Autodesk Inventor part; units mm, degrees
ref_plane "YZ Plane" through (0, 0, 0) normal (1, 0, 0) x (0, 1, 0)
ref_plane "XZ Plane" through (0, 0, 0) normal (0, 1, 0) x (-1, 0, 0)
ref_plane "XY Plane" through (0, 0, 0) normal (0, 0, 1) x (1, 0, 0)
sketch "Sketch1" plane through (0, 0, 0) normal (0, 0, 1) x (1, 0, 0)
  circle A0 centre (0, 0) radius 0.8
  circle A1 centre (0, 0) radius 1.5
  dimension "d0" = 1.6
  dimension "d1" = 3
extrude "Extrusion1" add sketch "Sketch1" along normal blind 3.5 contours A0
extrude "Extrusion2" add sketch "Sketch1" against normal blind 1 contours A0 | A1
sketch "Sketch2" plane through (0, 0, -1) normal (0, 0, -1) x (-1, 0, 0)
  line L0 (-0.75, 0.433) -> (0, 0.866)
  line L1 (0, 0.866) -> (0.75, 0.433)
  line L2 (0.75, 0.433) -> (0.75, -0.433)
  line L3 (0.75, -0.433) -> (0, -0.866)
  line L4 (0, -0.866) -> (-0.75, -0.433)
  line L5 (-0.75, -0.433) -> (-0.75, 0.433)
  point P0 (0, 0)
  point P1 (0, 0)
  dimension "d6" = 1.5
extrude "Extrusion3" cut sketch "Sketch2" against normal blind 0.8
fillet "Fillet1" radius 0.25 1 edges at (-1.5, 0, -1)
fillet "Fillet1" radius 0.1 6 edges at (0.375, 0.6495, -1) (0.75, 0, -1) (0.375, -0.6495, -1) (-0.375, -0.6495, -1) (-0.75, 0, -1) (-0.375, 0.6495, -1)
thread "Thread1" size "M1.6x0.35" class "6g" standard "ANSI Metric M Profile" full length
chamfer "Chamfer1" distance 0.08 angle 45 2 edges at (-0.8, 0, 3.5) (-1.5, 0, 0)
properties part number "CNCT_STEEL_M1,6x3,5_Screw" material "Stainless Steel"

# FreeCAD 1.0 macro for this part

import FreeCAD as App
import Part
import Sketcher

V = App.Vector
Q = App.Units.Quantity


def edges_at(feature, points):
    """Names of the edges that pass closest to the given points."""
    edges = feature.Shape.Edges
    near = lambda p: min(range(len(edges)), key=lambda i: edges[i].distToShape(Part.Vertex(*p))[0])
    return sorted({f"Edge{near(p) + 1}" for p in points})


def add_polygon(sketch, points):
    """Adds a closed chain of lines whose ends are joined by coincident constraints."""
    first, n = sketch.GeometryCount, len(points)
    for a, b in zip(points, points[1:] + points[:1]):
        sketch.addGeometry(Part.LineSegment(App.Vector(*a, 0), App.Vector(*b, 0)), False)
    for i in range(n):
        sketch.addConstraint(Sketcher.Constraint("Coincident", first + i, 2, first + (i + 1) % n, 1))

doc = App.newDocument("Part")
body = doc.addObject("PartDesign::Body", "Body")

# Sketch on XY plane
sketch1 = body.newObject("Sketcher::SketchObject", "Sketch")
sketch1.AttachmentSupport = (doc.getObject("XY_Plane"), [""])
sketch1.MapMode = "FlatFace"
sketch1.addGeometry(Part.Circle(V(0, 0, 0), V(0, 0, 1), 0.8), False)
sketch1.addConstraint(Sketcher.Constraint("Coincident", 0, 3, -1, 1))
sketch1.addConstraint(Sketcher.Constraint("Diameter", 0, 1.6))
pad1 = body.newObject("PartDesign::Pad", "Pad")
pad1.Profile = sketch1
pad1.Length = 3.5

# Sketch on XY plane
sketch2 = body.newObject("Sketcher::SketchObject", "Sketch001")
sketch2.AttachmentSupport = (doc.getObject("XY_Plane"), [""])
sketch2.MapMode = "FlatFace"
sketch2.addGeometry(Part.Circle(V(0, 0, 0), V(0, 0, 1), 1.5), False)
sketch2.addConstraint(Sketcher.Constraint("Coincident", 0, 3, -1, 1))
sketch2.addConstraint(Sketcher.Constraint("Diameter", 0, 3.0))
pad2 = body.newObject("PartDesign::Pad", "Pad001")
pad2.Profile = sketch2
pad2.Length = 1
pad2.Reversed = True

# Sketch on XY plane
sketch3 = body.newObject("Sketcher::SketchObject", "Sketch002")
sketch3.AttachmentSupport = (doc.getObject("XY_Plane"), [""])
sketch3.MapMode = "FlatFace"
sketch3.AttachmentOffset = App.Placement(V(0, 0, -1), App.Rotation())
add_polygon(sketch3, [(0, 0.9), (0.8, 0.4), (0.8, -0.4), (0, -0.9), (-0.8, -0.4), (-0.8, 0.4)])  # lines 0-5
sketch3.addConstraint(Sketcher.Constraint("Vertical", 1))
sketch3.addConstraint(Sketcher.Constraint("Vertical", 4))
sketch3.addConstraint(Sketcher.Constraint("Symmetric", 0, 2, 3, 2, -1, 1))
sketch3.addConstraint(Sketcher.Constraint("Symmetric", 2, 2, 5, 2, -1, 1))
sketch3.addConstraint(Sketcher.Constraint("PointOnObject", 2, 2, -2))
sketch3.addConstraint(Sketcher.Constraint("Parallel", 2, 5))
sketch3.addConstraint(Sketcher.Constraint("Horizontal", 1, 2, 3, 2))
sketch3.addConstraint(Sketcher.Constraint("DistanceX", 3, 2, 1, 2, 1.5))
sketch3.addConstraint(Sketcher.Constraint("Angle", 0, Q("-29.9993 deg")))
sketch3.addConstraint(Sketcher.Constraint("DistanceY", 1, 2, 1, 1, 0.866))
pocket1 = body.newObject("PartDesign::Pocket", "Pocket")
pocket1.Profile = sketch3
pocket1.Length = 0.8
pocket1.Reversed = True
doc.recompute()

fillet = body.newObject("PartDesign::Fillet", "Fillet")
fillet.Base = (pocket1, edges_at(pocket1, [(-1.5, 0, -1)]))
fillet.Radius = 0.25
doc.recompute()

fillet2 = body.newObject("PartDesign::Fillet", "Fillet001")
fillet2.Base = (fillet, edges_at(fillet, [
    (0.375, 0.649, -1),
    (0.75, 0, -1),
    (0.375, -0.649, -1),
    (-0.375, -0.649, -1),
    (-0.75, 0, -1),
    (-0.375, 0.649, -1),
]))
fillet2.Radius = 0.1
doc.recompute()

chamfer = body.newObject("PartDesign::Chamfer", "Chamfer")
chamfer.Base = (fillet2, edges_at(fillet2, [(-0.8, 0, 3.5), (-1.5, 0, 0)]))
chamfer.Size = 0.08

doc.recompute()
